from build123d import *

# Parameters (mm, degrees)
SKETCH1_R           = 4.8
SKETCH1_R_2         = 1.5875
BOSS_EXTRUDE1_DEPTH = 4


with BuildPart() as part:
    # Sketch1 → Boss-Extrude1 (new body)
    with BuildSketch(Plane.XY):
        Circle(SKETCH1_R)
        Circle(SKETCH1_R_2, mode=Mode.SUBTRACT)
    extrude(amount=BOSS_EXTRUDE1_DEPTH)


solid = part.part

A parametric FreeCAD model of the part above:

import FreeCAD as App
import Part
import Sketcher

V = App.Vector

doc = App.newDocument("Part")
body = doc.addObject("PartDesign::Body", "Body")

sketch1 = body.newObject("Sketcher::SketchObject", "Sketch")
sketch1.AttachmentSupport = (doc.getObject("XY_Plane"), [""])
sketch1.MapMode = "FlatFace"
sketch1.addGeometry([
    Part.Circle(V(0, 0, 0), V(0, 0, 1), 4.8),
    Part.Circle(V(0, 0, 0), V(0, 0, 1), 1.6),
], False)
sketch1.addConstraint([
    Sketcher.Constraint("Coincident", 0, 3, -1, 1),
    Sketcher.Constraint("Coincident", 1, 3, -1, 1),
    Sketcher.Constraint("Diameter", 0, 9.6),
    Sketcher.Constraint("Diameter", 1, 3.175),
])
pad1 = body.newObject("PartDesign::Pad", "Pad")
pad1.Profile = sketch1
pad1.Length = 4

doc.recompute()
